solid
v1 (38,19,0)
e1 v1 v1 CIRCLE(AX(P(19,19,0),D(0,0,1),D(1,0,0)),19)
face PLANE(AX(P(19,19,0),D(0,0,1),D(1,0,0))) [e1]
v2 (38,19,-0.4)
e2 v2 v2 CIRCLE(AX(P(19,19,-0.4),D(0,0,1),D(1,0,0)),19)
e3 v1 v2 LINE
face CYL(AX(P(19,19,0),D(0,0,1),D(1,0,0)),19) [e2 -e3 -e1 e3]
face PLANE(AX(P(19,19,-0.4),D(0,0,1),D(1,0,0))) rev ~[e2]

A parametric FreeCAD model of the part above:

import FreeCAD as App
import Part
import Sketcher
from FreeCAD import Vector
Q = App.Units.Quantity

doc = App.newDocument("Part")
body = doc.addObject("PartDesign::Body", "Body")

# Sketch on XY plane
sketch1 = body.newObject("Sketcher::SketchObject", "Sketch")
sketch1.AttachmentSupport = (doc.getObject("XY_Plane"), [""])
sketch1.MapMode = "FlatFace"
sketch1.addGeometry(Part.Circle(Vector(19, 19, 0), Vector(0, 0, 1), 19), False)
sketch1.addConstraint([
    Sketcher.Constraint("Diameter", 0, Q("38 mm")),
    Sketcher.Constraint("DistanceX", -1, 1, 0, 3, Q("19 mm")),
    Sketcher.Constraint("DistanceY", -1, 1, 0, 3, Q("19 mm")),
])
pad1 = body.newObject("PartDesign::Pad", "Pad")
pad1.Profile = sketch1
pad1.Length = 0.4
pad1.Reversed = True

doc.recompute()
